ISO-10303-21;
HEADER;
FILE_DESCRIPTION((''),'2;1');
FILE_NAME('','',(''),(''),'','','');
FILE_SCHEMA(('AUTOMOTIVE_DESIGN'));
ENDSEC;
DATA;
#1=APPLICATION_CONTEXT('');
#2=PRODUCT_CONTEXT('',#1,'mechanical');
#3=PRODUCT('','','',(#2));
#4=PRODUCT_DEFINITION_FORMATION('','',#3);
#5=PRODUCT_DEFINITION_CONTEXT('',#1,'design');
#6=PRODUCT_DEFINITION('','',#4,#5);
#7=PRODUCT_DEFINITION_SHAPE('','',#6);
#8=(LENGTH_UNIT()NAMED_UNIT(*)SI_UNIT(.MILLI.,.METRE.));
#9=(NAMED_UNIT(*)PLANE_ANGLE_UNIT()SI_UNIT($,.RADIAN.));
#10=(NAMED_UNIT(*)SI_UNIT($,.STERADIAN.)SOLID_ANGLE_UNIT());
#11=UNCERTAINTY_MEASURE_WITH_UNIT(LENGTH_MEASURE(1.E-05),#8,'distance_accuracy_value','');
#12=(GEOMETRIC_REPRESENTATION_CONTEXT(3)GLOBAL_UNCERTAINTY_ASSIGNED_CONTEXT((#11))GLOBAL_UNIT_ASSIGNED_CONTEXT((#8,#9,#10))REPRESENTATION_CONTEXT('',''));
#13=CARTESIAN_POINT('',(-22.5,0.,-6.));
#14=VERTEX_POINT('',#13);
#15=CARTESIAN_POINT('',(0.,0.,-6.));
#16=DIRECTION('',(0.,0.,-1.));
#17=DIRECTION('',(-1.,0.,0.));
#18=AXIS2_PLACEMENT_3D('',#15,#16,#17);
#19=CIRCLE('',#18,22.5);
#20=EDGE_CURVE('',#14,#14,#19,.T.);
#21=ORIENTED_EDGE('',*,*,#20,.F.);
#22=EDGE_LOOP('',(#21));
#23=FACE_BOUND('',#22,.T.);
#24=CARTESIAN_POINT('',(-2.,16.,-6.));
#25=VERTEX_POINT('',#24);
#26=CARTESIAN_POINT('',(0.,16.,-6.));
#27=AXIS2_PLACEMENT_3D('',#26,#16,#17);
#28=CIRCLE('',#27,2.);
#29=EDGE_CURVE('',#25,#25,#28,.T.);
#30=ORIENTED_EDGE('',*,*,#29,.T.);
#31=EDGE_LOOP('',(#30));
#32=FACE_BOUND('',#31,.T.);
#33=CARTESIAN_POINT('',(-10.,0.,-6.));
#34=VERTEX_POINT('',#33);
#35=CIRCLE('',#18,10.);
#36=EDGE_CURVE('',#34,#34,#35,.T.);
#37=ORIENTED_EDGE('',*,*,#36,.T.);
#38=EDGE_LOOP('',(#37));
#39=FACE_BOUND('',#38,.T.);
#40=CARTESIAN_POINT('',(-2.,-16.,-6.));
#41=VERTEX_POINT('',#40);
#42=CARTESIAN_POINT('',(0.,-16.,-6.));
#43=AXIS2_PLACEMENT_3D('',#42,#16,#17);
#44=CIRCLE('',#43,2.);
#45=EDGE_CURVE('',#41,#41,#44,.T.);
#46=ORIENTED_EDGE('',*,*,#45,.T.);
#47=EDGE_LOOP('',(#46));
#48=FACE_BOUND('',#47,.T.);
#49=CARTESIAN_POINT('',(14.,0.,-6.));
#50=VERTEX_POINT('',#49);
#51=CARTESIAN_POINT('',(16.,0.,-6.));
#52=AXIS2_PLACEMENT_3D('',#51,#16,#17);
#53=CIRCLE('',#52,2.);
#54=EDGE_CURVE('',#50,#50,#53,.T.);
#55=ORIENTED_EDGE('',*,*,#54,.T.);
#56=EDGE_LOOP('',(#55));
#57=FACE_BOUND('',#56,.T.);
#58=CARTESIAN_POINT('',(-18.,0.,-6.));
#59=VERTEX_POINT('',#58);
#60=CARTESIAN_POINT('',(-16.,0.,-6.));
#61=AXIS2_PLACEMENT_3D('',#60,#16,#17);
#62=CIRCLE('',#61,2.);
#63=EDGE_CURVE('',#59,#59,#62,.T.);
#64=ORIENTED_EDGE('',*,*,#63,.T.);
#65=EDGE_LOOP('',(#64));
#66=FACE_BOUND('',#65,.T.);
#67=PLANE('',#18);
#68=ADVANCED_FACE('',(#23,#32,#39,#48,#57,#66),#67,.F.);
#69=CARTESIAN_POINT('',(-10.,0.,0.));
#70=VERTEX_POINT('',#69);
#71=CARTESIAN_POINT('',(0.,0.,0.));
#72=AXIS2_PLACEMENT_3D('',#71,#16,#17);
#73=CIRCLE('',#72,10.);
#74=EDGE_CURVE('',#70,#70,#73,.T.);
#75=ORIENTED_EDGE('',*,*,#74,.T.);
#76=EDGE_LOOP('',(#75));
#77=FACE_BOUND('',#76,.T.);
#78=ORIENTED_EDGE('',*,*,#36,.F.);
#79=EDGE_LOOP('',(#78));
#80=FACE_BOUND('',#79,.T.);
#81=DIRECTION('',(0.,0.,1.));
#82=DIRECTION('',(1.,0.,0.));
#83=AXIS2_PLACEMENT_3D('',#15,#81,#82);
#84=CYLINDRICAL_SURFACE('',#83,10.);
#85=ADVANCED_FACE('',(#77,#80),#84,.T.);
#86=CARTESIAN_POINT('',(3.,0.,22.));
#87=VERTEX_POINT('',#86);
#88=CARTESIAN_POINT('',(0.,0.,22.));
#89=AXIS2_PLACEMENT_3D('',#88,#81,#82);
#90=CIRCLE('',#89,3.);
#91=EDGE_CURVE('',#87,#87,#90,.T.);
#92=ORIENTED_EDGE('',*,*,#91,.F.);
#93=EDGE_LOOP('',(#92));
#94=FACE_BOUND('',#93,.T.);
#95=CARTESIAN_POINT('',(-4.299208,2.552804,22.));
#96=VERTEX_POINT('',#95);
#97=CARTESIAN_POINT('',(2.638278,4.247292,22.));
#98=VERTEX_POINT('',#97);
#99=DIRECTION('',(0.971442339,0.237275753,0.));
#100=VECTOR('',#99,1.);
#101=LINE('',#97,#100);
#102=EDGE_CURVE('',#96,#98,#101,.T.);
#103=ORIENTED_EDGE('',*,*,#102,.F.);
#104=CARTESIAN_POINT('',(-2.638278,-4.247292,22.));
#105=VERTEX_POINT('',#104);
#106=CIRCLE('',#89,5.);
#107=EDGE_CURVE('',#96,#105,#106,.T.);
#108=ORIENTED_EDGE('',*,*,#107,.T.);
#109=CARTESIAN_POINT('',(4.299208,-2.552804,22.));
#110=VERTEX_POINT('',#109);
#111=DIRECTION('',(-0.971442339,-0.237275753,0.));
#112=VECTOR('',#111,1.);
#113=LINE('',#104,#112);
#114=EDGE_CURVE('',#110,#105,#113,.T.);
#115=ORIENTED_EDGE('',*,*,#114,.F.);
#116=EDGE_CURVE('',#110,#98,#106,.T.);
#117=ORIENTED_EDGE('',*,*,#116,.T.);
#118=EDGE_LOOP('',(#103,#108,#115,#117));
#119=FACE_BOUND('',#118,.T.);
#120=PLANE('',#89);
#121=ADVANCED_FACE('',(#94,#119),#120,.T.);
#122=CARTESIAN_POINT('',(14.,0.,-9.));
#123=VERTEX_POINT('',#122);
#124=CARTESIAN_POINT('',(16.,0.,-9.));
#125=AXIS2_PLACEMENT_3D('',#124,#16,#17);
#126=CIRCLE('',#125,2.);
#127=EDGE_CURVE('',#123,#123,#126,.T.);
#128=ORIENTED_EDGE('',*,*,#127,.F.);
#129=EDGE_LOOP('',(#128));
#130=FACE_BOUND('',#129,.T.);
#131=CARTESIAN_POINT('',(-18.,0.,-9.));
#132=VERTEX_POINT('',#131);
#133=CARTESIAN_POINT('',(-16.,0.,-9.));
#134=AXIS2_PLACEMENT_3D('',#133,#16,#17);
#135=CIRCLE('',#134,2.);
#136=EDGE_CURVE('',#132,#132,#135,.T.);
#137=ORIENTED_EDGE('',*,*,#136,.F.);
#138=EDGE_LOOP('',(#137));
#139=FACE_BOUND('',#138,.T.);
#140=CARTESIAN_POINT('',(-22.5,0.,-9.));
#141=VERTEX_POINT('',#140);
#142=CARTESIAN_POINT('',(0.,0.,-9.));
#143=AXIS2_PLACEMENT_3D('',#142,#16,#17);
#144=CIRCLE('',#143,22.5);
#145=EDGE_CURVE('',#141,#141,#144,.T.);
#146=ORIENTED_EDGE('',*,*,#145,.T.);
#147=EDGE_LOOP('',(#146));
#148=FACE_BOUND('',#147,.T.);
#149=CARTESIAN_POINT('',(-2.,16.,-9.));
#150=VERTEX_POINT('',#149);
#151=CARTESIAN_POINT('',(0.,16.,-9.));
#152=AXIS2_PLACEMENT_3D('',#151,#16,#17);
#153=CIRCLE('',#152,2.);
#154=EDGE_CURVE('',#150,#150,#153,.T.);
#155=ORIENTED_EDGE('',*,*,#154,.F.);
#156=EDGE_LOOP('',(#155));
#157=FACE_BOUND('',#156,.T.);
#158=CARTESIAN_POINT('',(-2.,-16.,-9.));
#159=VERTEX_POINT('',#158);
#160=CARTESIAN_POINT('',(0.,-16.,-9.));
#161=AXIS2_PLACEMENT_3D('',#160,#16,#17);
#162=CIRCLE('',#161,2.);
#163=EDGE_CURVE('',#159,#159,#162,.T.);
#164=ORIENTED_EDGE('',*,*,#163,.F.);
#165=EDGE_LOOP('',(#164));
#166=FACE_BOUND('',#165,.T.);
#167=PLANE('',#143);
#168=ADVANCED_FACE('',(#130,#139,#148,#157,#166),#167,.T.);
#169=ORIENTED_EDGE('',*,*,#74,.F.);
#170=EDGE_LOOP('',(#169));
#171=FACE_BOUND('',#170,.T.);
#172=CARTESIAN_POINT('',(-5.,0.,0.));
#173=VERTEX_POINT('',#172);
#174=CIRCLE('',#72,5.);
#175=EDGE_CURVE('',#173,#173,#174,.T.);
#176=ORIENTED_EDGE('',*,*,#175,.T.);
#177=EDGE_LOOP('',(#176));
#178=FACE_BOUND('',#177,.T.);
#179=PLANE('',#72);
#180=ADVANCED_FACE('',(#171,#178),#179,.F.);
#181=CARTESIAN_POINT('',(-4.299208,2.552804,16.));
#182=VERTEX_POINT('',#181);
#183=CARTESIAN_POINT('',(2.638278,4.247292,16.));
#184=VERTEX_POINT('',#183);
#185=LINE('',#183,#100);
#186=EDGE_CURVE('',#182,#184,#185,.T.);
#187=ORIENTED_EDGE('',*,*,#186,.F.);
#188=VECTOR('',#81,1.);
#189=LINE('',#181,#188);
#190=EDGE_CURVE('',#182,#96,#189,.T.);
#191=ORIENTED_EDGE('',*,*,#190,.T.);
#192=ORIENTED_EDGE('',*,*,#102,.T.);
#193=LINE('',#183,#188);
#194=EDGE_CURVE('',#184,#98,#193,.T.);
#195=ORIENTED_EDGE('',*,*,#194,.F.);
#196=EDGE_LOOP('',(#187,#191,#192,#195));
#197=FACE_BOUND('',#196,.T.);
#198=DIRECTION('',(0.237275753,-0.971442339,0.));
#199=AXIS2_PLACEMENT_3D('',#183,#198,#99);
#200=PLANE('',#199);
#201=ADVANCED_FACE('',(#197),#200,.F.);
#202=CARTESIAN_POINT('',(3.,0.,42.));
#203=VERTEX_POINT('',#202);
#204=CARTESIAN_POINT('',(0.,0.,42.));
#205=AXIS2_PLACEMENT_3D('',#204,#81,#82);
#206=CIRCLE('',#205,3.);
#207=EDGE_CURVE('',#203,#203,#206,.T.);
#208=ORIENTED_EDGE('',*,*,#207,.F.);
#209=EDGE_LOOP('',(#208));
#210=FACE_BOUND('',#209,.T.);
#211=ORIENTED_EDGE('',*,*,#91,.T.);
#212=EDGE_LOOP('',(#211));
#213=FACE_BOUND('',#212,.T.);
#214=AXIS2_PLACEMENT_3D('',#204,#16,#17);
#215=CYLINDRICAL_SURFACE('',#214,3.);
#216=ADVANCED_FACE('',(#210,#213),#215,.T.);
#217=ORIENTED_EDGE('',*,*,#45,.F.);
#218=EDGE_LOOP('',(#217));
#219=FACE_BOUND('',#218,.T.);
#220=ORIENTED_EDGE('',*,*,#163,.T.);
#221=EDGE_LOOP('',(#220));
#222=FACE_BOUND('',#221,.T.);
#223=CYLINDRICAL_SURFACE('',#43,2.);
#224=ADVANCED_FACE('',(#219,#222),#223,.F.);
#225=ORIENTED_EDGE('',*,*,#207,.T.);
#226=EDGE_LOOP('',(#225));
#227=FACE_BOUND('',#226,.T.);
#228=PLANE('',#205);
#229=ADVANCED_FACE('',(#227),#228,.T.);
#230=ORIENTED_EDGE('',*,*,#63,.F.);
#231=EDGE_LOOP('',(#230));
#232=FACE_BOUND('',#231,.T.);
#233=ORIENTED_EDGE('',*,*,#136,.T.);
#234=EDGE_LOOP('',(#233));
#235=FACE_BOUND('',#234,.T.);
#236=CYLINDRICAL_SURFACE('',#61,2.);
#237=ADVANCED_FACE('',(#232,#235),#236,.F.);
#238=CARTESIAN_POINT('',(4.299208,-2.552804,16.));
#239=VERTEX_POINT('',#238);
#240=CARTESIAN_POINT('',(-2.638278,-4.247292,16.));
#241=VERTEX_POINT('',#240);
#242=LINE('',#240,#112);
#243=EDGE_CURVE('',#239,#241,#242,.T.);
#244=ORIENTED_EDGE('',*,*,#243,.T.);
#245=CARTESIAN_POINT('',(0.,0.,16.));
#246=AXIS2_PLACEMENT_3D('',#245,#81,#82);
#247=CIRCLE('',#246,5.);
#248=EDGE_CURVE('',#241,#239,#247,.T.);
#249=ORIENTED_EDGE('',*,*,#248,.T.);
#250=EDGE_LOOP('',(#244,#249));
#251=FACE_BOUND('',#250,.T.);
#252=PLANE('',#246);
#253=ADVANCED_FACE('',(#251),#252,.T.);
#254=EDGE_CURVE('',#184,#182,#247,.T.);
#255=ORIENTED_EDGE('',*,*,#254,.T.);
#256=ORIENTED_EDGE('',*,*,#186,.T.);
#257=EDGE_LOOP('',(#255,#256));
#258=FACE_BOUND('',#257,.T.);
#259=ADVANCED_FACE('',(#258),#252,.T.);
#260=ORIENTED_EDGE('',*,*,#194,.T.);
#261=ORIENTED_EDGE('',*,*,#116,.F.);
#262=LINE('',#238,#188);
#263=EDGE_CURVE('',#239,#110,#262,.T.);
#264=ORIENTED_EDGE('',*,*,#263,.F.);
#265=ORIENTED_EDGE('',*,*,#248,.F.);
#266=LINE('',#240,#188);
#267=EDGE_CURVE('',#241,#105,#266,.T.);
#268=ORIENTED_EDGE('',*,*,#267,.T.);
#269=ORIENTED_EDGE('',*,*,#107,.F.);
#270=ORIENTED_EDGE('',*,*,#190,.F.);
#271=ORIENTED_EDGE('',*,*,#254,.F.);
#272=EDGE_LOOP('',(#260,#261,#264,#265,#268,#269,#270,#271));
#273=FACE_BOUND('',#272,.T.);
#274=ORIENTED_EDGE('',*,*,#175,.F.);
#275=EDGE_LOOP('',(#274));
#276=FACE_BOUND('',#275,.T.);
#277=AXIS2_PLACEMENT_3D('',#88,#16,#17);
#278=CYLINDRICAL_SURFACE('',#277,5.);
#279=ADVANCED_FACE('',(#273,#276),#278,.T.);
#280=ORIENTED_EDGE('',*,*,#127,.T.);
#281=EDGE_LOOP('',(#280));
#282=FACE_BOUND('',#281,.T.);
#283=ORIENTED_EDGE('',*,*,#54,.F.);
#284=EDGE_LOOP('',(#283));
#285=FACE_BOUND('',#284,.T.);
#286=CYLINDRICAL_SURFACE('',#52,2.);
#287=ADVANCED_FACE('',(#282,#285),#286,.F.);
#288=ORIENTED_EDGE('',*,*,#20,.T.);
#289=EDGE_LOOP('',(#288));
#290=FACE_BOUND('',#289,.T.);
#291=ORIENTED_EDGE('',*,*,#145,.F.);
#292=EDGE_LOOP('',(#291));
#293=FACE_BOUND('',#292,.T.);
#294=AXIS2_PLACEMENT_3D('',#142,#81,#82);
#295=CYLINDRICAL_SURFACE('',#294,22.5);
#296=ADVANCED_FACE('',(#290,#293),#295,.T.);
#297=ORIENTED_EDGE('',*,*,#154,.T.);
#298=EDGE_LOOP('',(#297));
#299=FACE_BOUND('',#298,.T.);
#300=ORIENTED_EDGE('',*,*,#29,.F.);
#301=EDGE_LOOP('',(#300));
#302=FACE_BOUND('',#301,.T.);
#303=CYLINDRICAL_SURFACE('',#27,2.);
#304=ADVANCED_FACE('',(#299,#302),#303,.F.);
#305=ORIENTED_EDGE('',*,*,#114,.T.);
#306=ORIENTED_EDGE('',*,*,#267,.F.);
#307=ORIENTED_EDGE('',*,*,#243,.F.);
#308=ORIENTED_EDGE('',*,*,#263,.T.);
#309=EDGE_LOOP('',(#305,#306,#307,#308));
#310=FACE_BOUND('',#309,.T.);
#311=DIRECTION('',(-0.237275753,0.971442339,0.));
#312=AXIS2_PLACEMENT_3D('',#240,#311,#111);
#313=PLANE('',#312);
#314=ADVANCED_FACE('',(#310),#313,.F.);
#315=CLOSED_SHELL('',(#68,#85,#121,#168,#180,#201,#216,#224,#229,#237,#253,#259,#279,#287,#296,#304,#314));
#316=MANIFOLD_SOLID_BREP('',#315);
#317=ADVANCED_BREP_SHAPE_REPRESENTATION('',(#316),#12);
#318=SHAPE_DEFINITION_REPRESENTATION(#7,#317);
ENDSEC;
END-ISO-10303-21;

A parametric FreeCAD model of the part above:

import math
import FreeCAD as App
import Part
import Sketcher

doc = App.newDocument("Part")
body = doc.addObject("PartDesign::Body", "Body")

# Sketch on XY plane
sketch1 = doc.addObject("Sketcher::SketchObject", "Sketch")
body.addObject(sketch1)
sketch1.AttachmentSupport = (doc.XY_Plane, [""])
sketch1.MapMode = "FlatFace"
sketch1.addGeometry(Part.Circle(App.Vector(0, 0, 0), App.Vector(0, 0, 1), 5), False)
sketch1.addConstraint([
    Sketcher.Constraint("Coincident", 0, 3, -1, 1),
    Sketcher.Constraint("Diameter", 0, 10.0),
])
pad1 = doc.addObject("PartDesign::Pad", "Pad")
body.addObject(pad1)
pad1.Profile = sketch1
pad1.Length = 22

# Sketch on XY plane
sketch2 = doc.addObject("Sketcher::SketchObject", "Sketch001")
body.addObject(sketch2)
sketch2.AttachmentSupport = (doc.XY_Plane, [""])
sketch2.MapMode = "FlatFace"
sketch2.AttachmentOffset = App.Placement(App.Vector(0, 0, 16), App.Rotation())
sketch2.addGeometry([
    Part.LineSegment(App.Vector(-4.299208, 2.552804, 0), App.Vector(2.638278, 4.247292, 0)),
    Part.ArcOfCircle(Part.Circle(App.Vector(0, 0, 0), App.Vector(0, 0, 1), 5), math.radians(58.152813), math.radians(149.298805)),
    Part.LineSegment(App.Vector(4.299208, -2.552804, 0), App.Vector(-2.638278, -4.247292, 0)),
    Part.ArcOfCircle(Part.Circle(App.Vector(0, 0, 0), App.Vector(0, 0, 1), 5), math.radians(-121.847187), math.radians(-30.701195)),
], False)
sketch2.addConstraint([
    Sketcher.Constraint("Coincident", 0, 1, 1, 2),
    Sketcher.Constraint("Coincident", 1, 1, 0, 2),
    Sketcher.Constraint("Coincident", 2, 1, 3, 2),
    Sketcher.Constraint("Coincident", 3, 1, 2, 2),
    Sketcher.Constraint("Coincident", 1, 3, -1, 1),
    Sketcher.Constraint("Coincident", 3, 3, -1, 1),
    Sketcher.Constraint("Equal", 1, 3),
    Sketcher.Constraint("Parallel", 0, 2),
    Sketcher.Constraint("Equal", 0, 2),
    Sketcher.Constraint("Radius", 1, 5.0),
    Sketcher.Constraint("Distance", 0, 7.141428),
    Sketcher.Constraint("DistanceX", 0, 1, -1, 1, 4.299208),
])
pocket1 = doc.addObject("PartDesign::Pocket", "Pocket")
body.addObject(pocket1)
pocket1.Profile = sketch2
pocket1.Length = 6
pocket1.Reversed = True

# Sketch on XY plane
sketch3 = doc.addObject("Sketcher::SketchObject", "Sketch002")
body.addObject(sketch3)
sketch3.AttachmentSupport = (doc.XY_Plane, [""])
sketch3.MapMode = "FlatFace"
sketch3.AttachmentOffset = App.Placement(App.Vector(0, 0, 22), App.Rotation())
sketch3.addGeometry(Part.Circle(App.Vector(0, 0, 0), App.Vector(0, 0, 1), 3), False)
sketch3.addConstraint([
    Sketcher.Constraint("Coincident", 0, 3, -1, 1),
    Sketcher.Constraint("Diameter", 0, 6.0),
])
pad2 = doc.addObject("PartDesign::Pad", "Pad001")
body.addObject(pad2)
pad2.Profile = sketch3
pad2.Length = 20

# Sketch on XY plane
sketch4 = doc.addObject("Sketcher::SketchObject", "Sketch003")
body.addObject(sketch4)
sketch4.AttachmentSupport = (doc.XY_Plane, [""])
sketch4.MapMode = "FlatFace"
sketch4.addGeometry(Part.Circle(App.Vector(0, 0, 0), App.Vector(0, 0, 1), 10), False)
sketch4.addConstraint([
    Sketcher.Constraint("Coincident", 0, 3, -1, 1),
    Sketcher.Constraint("Diameter", 0, 20.0),
])
pad3 = doc.addObject("PartDesign::Pad", "Pad002")
body.addObject(pad3)
pad3.Profile = sketch4
pad3.Length = 6
pad3.Reversed = True

# Sketch on XY plane
sketch5 = doc.addObject("Sketcher::SketchObject", "Sketch004")
body.addObject(sketch5)
sketch5.AttachmentSupport = (doc.XY_Plane, [""])
sketch5.MapMode = "FlatFace"
sketch5.AttachmentOffset = App.Placement(App.Vector(0, 0, -6), App.Rotation())
sketch5.addGeometry(Part.Circle(App.Vector(0, 0, 0), App.Vector(0, 0, 1), 22.5), False)
sketch5.addConstraint([
    Sketcher.Constraint("Coincident", 0, 3, -1, 1),
    Sketcher.Constraint("Diameter", 0, 45.0),
])
pad4 = doc.addObject("PartDesign::Pad", "Pad003")
body.addObject(pad4)
pad4.Profile = sketch5
pad4.Length = 3
pad4.Reversed = True

# Sketch on XY plane
sketch6 = doc.addObject("Sketcher::SketchObject", "Sketch005")
body.addObject(sketch6)
sketch6.AttachmentSupport = (doc.XY_Plane, [""])
sketch6.MapMode = "FlatFace"
sketch6.AttachmentOffset = App.Placement(App.Vector(0, 0, -9), App.Rotation())
sketch6.addGeometry([
    Part.Circle(App.Vector(16, 0, 0), App.Vector(0, 0, 1), 2),
    Part.Circle(App.Vector(0, 16, 0), App.Vector(0, 0, 1), 2),
    Part.Circle(App.Vector(-16, 0, 0), App.Vector(0, 0, 1), 2),
    Part.Circle(App.Vector(0, -16, 0), App.Vector(0, 0, 1), 2),
], False)
sketch6.addConstraint([
    Sketcher.Constraint("Equal", 0, 1),
    Sketcher.Constraint("Equal", 1, 2),
    Sketcher.Constraint("Equal", 2, 3),
    Sketcher.Constraint("Symmetric", 0, 3, 2, 3, -1, 1),
    Sketcher.Constraint("Symmetric", 1, 3, 3, 3, -1, 1),
    Sketcher.Constraint("PointOnObject", 0, 3, -1),
    Sketcher.Constraint("PointOnObject", 1, 3, -2),
    Sketcher.Constraint("Diameter", 0, 4.0),
    Sketcher.Constraint("DistanceX", -1, 1, 0, 3, 16.0),
    Sketcher.Constraint("DistanceY", -1, 1, 1, 3, 16.0),
])
pocket2 = doc.addObject("PartDesign::Pocket", "Pocket001")
body.addObject(pocket2)
pocket2.Profile = sketch6
pocket2.Length = 3
pocket2.Reversed = True

doc.recompute()
